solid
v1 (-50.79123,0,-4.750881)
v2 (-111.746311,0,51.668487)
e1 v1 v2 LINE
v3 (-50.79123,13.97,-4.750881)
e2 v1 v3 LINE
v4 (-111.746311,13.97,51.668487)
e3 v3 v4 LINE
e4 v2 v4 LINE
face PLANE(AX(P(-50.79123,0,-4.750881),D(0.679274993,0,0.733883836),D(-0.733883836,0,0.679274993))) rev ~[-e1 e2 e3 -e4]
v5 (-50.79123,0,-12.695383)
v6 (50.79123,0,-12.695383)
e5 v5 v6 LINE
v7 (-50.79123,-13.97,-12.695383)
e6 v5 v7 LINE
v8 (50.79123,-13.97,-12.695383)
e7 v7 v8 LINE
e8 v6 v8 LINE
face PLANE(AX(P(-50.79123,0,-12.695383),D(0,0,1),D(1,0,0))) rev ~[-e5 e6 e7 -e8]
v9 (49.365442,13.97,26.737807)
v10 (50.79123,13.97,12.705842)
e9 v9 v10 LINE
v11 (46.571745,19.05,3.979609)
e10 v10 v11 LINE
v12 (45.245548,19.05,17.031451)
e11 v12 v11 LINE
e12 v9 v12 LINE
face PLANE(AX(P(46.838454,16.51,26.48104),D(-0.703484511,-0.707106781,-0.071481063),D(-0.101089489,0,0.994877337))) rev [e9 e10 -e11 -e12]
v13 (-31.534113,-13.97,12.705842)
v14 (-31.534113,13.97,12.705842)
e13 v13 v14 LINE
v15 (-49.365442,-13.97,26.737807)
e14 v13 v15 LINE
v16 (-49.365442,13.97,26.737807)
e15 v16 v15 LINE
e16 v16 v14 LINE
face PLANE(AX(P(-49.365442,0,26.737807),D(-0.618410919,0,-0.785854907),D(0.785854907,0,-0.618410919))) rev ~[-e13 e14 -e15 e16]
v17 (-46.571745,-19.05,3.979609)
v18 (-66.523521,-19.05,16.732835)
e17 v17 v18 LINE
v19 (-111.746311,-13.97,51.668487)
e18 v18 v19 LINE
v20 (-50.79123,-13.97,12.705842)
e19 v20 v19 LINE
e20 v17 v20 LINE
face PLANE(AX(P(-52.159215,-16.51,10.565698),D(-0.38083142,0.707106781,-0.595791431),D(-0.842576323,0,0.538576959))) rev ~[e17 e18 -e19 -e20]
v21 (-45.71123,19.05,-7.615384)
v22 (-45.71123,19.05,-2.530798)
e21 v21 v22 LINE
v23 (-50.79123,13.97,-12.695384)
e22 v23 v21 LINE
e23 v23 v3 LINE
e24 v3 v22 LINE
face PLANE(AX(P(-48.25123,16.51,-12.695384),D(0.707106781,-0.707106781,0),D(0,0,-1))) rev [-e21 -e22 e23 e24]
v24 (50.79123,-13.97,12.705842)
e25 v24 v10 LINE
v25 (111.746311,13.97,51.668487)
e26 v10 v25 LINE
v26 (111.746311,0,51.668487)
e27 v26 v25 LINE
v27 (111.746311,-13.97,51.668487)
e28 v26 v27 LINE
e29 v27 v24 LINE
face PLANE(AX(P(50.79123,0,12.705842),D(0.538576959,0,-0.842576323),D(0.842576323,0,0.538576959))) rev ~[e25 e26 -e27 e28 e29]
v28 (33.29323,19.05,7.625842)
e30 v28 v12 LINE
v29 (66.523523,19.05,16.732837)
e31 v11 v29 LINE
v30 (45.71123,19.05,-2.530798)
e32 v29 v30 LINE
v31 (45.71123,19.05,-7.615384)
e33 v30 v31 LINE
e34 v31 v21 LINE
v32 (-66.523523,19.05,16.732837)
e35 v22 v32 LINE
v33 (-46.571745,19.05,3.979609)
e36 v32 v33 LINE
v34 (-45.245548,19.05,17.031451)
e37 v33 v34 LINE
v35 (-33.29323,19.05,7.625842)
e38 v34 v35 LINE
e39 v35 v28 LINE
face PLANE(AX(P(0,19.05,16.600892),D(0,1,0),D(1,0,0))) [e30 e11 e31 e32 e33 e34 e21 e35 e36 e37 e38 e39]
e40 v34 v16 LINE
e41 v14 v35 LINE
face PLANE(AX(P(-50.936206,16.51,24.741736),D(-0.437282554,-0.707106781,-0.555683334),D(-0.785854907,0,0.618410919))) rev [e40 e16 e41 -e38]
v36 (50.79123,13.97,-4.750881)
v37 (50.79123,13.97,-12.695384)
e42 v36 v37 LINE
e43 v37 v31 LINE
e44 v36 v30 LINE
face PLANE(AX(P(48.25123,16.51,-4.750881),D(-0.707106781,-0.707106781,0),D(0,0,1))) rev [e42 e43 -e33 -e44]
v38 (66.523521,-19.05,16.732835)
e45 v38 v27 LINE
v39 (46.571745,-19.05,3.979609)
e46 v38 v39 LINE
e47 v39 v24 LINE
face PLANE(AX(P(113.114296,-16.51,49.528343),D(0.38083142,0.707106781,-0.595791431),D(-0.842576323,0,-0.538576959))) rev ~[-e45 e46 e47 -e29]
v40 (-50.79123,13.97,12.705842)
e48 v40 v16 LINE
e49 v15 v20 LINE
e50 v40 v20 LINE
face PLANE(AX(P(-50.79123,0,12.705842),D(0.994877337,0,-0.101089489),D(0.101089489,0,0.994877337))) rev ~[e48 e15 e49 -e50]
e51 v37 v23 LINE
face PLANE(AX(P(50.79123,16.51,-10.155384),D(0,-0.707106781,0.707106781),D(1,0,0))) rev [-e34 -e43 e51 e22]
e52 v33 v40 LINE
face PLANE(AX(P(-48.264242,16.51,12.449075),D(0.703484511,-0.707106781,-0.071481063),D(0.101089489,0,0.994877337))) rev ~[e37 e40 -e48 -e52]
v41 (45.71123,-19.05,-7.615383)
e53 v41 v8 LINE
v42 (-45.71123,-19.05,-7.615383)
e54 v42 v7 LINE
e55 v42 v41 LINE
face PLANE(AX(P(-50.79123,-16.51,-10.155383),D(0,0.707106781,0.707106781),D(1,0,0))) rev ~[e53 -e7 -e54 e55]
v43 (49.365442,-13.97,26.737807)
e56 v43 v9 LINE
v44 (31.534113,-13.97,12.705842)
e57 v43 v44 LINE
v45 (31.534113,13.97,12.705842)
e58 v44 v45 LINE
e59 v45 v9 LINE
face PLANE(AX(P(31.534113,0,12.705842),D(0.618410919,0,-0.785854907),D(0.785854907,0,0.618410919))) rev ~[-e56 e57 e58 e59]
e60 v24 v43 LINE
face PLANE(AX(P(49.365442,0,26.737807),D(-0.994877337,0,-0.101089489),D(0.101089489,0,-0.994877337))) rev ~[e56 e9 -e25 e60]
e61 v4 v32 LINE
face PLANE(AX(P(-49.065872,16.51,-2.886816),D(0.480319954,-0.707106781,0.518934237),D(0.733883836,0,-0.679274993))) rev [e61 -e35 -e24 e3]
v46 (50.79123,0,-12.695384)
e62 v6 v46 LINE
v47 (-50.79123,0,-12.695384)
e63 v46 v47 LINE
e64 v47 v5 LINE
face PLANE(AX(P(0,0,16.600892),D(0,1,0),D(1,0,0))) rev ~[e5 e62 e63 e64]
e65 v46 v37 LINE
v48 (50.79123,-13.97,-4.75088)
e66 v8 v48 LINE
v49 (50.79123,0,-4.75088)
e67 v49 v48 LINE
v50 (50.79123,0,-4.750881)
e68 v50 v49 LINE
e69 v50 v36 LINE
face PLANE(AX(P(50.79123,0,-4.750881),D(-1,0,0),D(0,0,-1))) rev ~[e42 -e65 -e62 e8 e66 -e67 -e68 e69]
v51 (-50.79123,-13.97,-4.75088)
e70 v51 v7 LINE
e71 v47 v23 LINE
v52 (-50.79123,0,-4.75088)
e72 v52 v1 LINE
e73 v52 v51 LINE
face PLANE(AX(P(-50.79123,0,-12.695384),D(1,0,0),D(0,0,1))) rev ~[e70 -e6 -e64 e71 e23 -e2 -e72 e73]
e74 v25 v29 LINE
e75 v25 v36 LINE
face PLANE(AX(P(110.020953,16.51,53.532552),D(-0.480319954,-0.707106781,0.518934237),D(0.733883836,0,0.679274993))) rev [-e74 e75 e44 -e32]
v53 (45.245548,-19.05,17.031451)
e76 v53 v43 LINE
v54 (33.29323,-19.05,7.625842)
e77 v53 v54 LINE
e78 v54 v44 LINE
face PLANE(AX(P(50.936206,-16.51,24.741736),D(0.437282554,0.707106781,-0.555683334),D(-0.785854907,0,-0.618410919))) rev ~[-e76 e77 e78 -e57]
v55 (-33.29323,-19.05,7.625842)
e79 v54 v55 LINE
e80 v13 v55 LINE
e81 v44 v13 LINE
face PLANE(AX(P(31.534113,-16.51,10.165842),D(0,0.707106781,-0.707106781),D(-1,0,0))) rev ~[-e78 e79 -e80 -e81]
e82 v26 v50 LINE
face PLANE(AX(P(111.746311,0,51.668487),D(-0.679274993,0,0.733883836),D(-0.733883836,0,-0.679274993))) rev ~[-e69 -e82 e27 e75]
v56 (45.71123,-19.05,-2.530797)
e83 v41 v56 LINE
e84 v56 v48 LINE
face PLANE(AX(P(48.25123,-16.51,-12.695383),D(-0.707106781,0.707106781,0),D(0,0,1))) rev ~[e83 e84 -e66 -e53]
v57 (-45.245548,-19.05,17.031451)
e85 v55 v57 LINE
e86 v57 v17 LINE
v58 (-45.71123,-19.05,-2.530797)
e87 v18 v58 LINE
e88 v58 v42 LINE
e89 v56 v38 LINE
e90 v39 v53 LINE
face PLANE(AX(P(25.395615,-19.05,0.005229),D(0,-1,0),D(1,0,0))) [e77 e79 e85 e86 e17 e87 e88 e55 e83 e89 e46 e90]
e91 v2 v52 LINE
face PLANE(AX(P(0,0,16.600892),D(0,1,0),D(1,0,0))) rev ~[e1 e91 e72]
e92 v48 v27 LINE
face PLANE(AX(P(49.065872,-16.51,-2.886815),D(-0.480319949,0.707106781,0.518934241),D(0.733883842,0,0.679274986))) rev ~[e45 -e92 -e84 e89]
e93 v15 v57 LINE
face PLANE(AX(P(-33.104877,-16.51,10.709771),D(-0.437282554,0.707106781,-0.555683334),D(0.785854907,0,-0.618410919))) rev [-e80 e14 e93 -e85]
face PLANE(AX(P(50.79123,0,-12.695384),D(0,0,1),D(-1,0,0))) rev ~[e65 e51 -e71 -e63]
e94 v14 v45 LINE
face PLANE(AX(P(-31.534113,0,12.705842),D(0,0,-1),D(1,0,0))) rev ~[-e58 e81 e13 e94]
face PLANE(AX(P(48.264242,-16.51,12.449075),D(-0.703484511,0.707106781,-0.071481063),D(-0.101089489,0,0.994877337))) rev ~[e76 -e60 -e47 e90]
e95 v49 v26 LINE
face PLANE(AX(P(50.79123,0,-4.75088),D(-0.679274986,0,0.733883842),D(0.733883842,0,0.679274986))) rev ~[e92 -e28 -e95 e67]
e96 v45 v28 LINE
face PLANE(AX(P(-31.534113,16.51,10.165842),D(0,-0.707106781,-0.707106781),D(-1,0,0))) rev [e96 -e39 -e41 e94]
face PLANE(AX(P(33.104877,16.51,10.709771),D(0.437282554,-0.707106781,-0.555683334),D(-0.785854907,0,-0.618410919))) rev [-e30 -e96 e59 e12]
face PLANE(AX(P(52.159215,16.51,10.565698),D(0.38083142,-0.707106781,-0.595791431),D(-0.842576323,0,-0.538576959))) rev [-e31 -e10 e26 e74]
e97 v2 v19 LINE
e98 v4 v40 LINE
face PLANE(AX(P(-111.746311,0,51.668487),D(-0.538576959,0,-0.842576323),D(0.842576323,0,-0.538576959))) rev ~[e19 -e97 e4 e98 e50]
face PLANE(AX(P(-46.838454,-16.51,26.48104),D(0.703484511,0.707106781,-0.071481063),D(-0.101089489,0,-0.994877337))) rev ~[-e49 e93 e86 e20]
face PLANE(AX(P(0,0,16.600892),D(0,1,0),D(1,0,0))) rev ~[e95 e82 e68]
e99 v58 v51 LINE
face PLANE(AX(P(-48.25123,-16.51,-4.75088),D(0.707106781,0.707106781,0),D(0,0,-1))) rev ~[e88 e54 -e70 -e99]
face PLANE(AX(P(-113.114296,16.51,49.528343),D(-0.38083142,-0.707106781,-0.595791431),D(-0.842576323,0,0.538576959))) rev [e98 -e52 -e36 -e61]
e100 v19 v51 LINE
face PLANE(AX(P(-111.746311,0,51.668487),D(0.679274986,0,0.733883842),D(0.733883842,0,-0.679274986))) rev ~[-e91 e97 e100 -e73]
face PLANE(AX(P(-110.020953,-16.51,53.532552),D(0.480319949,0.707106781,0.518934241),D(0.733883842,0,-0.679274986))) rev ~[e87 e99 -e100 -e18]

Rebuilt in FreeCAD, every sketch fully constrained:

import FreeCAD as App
import Part
import Sketcher
Q = App.Units.Quantity


def edges_at(feature, points):
    """Names of the edges that pass closest to the given points."""
    edges = feature.Shape.Edges
    near = lambda p: min(range(len(edges)), key=lambda i: edges[i].distToShape(Part.Vertex(*p))[0])
    return sorted({f"Edge{near(p) + 1}" for p in points})

doc = App.newDocument("Part")
body = doc.addObject("PartDesign::Body", "Body")

# Sketch on XZ plane
sketch1 = doc.addObject("Sketcher::SketchObject", "Sketch")
body.addObject(sketch1)
sketch1.AttachmentSupport = (doc.XZ_Plane, [""])
sketch1.MapMode = "FlatFace"
sketch1.addGeometry([
    Part.LineSegment(App.Vector(51, -13, 0), App.Vector(51, -5, 0)),  # 0
    Part.LineSegment(App.Vector(51, -5, 0), App.Vector(112, 52, 0)),  # 1
    Part.LineSegment(App.Vector(112, 52, 0), App.Vector(51, 13, 0)),  # 2
    Part.LineSegment(App.Vector(51, 13, 0), App.Vector(49, 27, 0)),  # 3
    Part.LineSegment(App.Vector(49, 27, 0), App.Vector(32, 13, 0)),  # 4
    Part.LineSegment(App.Vector(32, 13, 0), App.Vector(-32, 13, 0)),  # 5
    Part.LineSegment(App.Vector(-32, 13, 0), App.Vector(-49, 27, 0)),  # 6
    Part.LineSegment(App.Vector(-49, 27, 0), App.Vector(-51, 13, 0)),  # 7
    Part.LineSegment(App.Vector(-51, 13, 0), App.Vector(-112, 52, 0)),  # 8
    Part.LineSegment(App.Vector(-112, 52, 0), App.Vector(-51, -5, 0)),  # 9
    Part.LineSegment(App.Vector(-51, -5, 0), App.Vector(-51, -13, 0)),  # 10
    Part.LineSegment(App.Vector(-51, -13, 0), App.Vector(51, -13, 0)),  # 11
], False)
sketch1.addConstraint([
    Sketcher.Constraint("Coincident", 0, 2, 1, 1),
    Sketcher.Constraint("Coincident", 1, 2, 2, 1),
    Sketcher.Constraint("Coincident", 2, 2, 3, 1),
    Sketcher.Constraint("Coincident", 3, 2, 4, 1),
    Sketcher.Constraint("Coincident", 4, 2, 5, 1),
    Sketcher.Constraint("Coincident", 5, 2, 6, 1),
    Sketcher.Constraint("Coincident", 6, 2, 7, 1),
    Sketcher.Constraint("Coincident", 7, 2, 8, 1),
    Sketcher.Constraint("Coincident", 8, 2, 9, 1),
    Sketcher.Constraint("Coincident", 9, 2, 10, 1),
    Sketcher.Constraint("Coincident", 10, 2, 11, 1),
    Sketcher.Constraint("Coincident", 11, 2, 0, 1),
    Sketcher.Constraint("Vertical", 0),
    Sketcher.Constraint("Horizontal", 5),
    Sketcher.Constraint("Vertical", 10),
    Sketcher.Constraint("Horizontal", 11),
    Sketcher.Constraint("Symmetric", 3, 2, 6, 2, -2),
    Sketcher.Constraint("Symmetric", 2, 2, 7, 2, -2),
    Sketcher.Constraint("Symmetric", 1, 2, 8, 2, -2),
    Sketcher.Constraint("Symmetric", 0, 2, 9, 2, -2),
    Sketcher.Constraint("Horizontal", 2, 2, 4, 2),
    Sketcher.Constraint("Vertical", 0, 2, 2, 2),
    Sketcher.Constraint("Equal", 4, 6),
    Sketcher.Constraint("DistanceX", 11, 1, 11, 2, Q("101.58246 mm")),
    Sketcher.Constraint("DistanceX", 4, 2, 1, 2, Q("80.212198 mm")),
    Sketcher.Constraint("Distance", 2, Q("72.343691 mm")),
    Sketcher.Constraint("DistanceX", 5, 2, 5, 1, Q("63.068226 mm")),
    Sketcher.Constraint("DistanceY", 0, 1, 0, 2, Q("7.944503 mm")),
    Sketcher.Constraint("DistanceY", 0, 2, -1, 1, Q("4.75088 mm")),
    Sketcher.Constraint("DistanceY", 0, 2, 2, 2, Q("17.456722 mm")),
    Sketcher.Constraint("DistanceX", 3, 2, 1, 2, Q("62.380869 mm")),
    Sketcher.Constraint("DistanceY", 3, 2, 1, 2, Q("24.93068 mm")),
])
pad1 = doc.addObject("PartDesign::Pad", "Pad")
body.addObject(pad1)
pad1.Profile = sketch1
pad1.Length = Q("0.75 in")

# Sketch on XZ plane
sketch2 = doc.addObject("Sketcher::SketchObject", "Sketch001")
body.addObject(sketch2)
sketch2.AttachmentSupport = (doc.XZ_Plane, [""])
sketch2.MapMode = "FlatFace"
sketch2.addGeometry([
    Part.LineSegment(App.Vector(-49, 27, 0), App.Vector(-32, 13, 0)),  # 0
    Part.LineSegment(App.Vector(-32, 13, 0), App.Vector(32, 13, 0)),  # 1
    Part.LineSegment(App.Vector(32, 13, 0), App.Vector(49, 27, 0)),  # 2
    Part.LineSegment(App.Vector(49, 27, 0), App.Vector(51, 13, 0)),  # 3
    Part.LineSegment(App.Vector(51, 13, 0), App.Vector(112, 52, 0)),  # 4
    Part.LineSegment(App.Vector(112, 52, 0), App.Vector(51, -5, 0)),  # 5
    Part.LineSegment(App.Vector(51, -5, 0), App.Vector(51, -13, 0)),  # 6
    Part.LineSegment(App.Vector(51, -13, 0), App.Vector(-51, -13, 0)),  # 7
    Part.LineSegment(App.Vector(-51, -13, 0), App.Vector(-51, -5, 0)),  # 8
    Part.LineSegment(App.Vector(-51, -5, 0), App.Vector(-112, 52, 0)),  # 9
    Part.LineSegment(App.Vector(-112, 52, 0), App.Vector(-51, 13, 0)),  # 10
    Part.LineSegment(App.Vector(-51, 13, 0), App.Vector(-49, 27, 0)),  # 11
], False)
sketch2.addConstraint([
    Sketcher.Constraint("Coincident", 0, 2, 1, 1),
    Sketcher.Constraint("Coincident", 1, 2, 2, 1),
    Sketcher.Constraint("Coincident", 2, 2, 3, 1),
    Sketcher.Constraint("Coincident", 3, 2, 4, 1),
    Sketcher.Constraint("Coincident", 4, 2, 5, 1),
    Sketcher.Constraint("Coincident", 5, 2, 6, 1),
    Sketcher.Constraint("Coincident", 6, 2, 7, 1),
    Sketcher.Constraint("Coincident", 7, 2, 8, 1),
    Sketcher.Constraint("Coincident", 8, 2, 9, 1),
    Sketcher.Constraint("Coincident", 9, 2, 10, 1),
    Sketcher.Constraint("Coincident", 10, 2, 11, 1),
    Sketcher.Constraint("Coincident", 11, 2, 0, 1),
    Sketcher.Constraint("Horizontal", 1),
    Sketcher.Constraint("Vertical", 6),
    Sketcher.Constraint("Horizontal", 7),
    Sketcher.Constraint("Vertical", 8),
    Sketcher.Constraint("Symmetric", 5, 2, 8, 2, -2),
    Sketcher.Constraint("Symmetric", 4, 2, 9, 2, -2),
    Sketcher.Constraint("Symmetric", 3, 2, 10, 2, -2),
    Sketcher.Constraint("Symmetric", 2, 2, 11, 2, -2),
    Sketcher.Constraint("Horizontal", 1, 2, 3, 2),
    Sketcher.Constraint("Vertical", 3, 2, 5, 2),
    Sketcher.Constraint("Equal", 0, 2),
    Sketcher.Constraint("DistanceX", 7, 2, 7, 1, Q("101.58246 mm")),
    Sketcher.Constraint("DistanceX", 1, 2, 4, 2, Q("80.212198 mm")),
    Sketcher.Constraint("Distance", 4, Q("72.343691 mm")),
    Sketcher.Constraint("DistanceX", 1, 1, 1, 2, Q("63.068226 mm")),
    Sketcher.Constraint("DistanceY", 6, 2, 6, 1, Q("7.944503 mm")),
    Sketcher.Constraint("DistanceY", 5, 2, -1, 1, Q("4.750881 mm")),
    Sketcher.Constraint("DistanceX", 1, 2, 2, 2, Q("17.831329 mm")),
    Sketcher.Constraint("DistanceY", 2, 2, 4, 2, Q("24.93068 mm")),
    Sketcher.Constraint("DistanceY", 5, 2, 2, 2, Q("31.488688 mm")),
])
pad2 = doc.addObject("PartDesign::Pad", "Pad001")
body.addObject(pad2)
pad2.Profile = sketch2
pad2.Length = Q("0.75 in")
pad2.Reversed = True
doc.recompute()

chamfer = doc.addObject("PartDesign::Chamfer", "Chamfer")
body.addObject(chamfer)
chamfer.Base = (pad2, edges_at(pad2, [
    (-40.45, -19.05, 19.722),
    (-50.078, -19.05, 19.722),
    (-81.269, -19.05, 32.187),
    (-81.269, -19.05, 23.459),
    (-50.791, -19.05, -8.723),
    (0, -19.05, -12.695),
    (50.791, -19.05, -8.723),
    (81.269, -19.05, 23.459),
    (81.269, -19.05, 32.187),
    (50.078, -19.05, 19.722),
    (40.45, -19.05, 19.722),
    (0, -19.05, 12.706),
    (-50.078, 19.05, 19.722),
    (-40.45, 19.05, 19.722),
    (0, 19.05, 12.706),
    (40.45, 19.05, 19.722),
    (50.078, 19.05, 19.722),
    (81.269, 19.05, 32.187),
    (81.269, 19.05, 23.459),
    (50.791, 19.05, -8.723),
    (0, 19.05, -12.695),
    (-50.791, 19.05, -8.723),
    (-81.269, 19.05, 23.459),
    (-81.269, 19.05, 32.187),
]))
chamfer.Size = Q("0.2 in")

doc.recompute()
